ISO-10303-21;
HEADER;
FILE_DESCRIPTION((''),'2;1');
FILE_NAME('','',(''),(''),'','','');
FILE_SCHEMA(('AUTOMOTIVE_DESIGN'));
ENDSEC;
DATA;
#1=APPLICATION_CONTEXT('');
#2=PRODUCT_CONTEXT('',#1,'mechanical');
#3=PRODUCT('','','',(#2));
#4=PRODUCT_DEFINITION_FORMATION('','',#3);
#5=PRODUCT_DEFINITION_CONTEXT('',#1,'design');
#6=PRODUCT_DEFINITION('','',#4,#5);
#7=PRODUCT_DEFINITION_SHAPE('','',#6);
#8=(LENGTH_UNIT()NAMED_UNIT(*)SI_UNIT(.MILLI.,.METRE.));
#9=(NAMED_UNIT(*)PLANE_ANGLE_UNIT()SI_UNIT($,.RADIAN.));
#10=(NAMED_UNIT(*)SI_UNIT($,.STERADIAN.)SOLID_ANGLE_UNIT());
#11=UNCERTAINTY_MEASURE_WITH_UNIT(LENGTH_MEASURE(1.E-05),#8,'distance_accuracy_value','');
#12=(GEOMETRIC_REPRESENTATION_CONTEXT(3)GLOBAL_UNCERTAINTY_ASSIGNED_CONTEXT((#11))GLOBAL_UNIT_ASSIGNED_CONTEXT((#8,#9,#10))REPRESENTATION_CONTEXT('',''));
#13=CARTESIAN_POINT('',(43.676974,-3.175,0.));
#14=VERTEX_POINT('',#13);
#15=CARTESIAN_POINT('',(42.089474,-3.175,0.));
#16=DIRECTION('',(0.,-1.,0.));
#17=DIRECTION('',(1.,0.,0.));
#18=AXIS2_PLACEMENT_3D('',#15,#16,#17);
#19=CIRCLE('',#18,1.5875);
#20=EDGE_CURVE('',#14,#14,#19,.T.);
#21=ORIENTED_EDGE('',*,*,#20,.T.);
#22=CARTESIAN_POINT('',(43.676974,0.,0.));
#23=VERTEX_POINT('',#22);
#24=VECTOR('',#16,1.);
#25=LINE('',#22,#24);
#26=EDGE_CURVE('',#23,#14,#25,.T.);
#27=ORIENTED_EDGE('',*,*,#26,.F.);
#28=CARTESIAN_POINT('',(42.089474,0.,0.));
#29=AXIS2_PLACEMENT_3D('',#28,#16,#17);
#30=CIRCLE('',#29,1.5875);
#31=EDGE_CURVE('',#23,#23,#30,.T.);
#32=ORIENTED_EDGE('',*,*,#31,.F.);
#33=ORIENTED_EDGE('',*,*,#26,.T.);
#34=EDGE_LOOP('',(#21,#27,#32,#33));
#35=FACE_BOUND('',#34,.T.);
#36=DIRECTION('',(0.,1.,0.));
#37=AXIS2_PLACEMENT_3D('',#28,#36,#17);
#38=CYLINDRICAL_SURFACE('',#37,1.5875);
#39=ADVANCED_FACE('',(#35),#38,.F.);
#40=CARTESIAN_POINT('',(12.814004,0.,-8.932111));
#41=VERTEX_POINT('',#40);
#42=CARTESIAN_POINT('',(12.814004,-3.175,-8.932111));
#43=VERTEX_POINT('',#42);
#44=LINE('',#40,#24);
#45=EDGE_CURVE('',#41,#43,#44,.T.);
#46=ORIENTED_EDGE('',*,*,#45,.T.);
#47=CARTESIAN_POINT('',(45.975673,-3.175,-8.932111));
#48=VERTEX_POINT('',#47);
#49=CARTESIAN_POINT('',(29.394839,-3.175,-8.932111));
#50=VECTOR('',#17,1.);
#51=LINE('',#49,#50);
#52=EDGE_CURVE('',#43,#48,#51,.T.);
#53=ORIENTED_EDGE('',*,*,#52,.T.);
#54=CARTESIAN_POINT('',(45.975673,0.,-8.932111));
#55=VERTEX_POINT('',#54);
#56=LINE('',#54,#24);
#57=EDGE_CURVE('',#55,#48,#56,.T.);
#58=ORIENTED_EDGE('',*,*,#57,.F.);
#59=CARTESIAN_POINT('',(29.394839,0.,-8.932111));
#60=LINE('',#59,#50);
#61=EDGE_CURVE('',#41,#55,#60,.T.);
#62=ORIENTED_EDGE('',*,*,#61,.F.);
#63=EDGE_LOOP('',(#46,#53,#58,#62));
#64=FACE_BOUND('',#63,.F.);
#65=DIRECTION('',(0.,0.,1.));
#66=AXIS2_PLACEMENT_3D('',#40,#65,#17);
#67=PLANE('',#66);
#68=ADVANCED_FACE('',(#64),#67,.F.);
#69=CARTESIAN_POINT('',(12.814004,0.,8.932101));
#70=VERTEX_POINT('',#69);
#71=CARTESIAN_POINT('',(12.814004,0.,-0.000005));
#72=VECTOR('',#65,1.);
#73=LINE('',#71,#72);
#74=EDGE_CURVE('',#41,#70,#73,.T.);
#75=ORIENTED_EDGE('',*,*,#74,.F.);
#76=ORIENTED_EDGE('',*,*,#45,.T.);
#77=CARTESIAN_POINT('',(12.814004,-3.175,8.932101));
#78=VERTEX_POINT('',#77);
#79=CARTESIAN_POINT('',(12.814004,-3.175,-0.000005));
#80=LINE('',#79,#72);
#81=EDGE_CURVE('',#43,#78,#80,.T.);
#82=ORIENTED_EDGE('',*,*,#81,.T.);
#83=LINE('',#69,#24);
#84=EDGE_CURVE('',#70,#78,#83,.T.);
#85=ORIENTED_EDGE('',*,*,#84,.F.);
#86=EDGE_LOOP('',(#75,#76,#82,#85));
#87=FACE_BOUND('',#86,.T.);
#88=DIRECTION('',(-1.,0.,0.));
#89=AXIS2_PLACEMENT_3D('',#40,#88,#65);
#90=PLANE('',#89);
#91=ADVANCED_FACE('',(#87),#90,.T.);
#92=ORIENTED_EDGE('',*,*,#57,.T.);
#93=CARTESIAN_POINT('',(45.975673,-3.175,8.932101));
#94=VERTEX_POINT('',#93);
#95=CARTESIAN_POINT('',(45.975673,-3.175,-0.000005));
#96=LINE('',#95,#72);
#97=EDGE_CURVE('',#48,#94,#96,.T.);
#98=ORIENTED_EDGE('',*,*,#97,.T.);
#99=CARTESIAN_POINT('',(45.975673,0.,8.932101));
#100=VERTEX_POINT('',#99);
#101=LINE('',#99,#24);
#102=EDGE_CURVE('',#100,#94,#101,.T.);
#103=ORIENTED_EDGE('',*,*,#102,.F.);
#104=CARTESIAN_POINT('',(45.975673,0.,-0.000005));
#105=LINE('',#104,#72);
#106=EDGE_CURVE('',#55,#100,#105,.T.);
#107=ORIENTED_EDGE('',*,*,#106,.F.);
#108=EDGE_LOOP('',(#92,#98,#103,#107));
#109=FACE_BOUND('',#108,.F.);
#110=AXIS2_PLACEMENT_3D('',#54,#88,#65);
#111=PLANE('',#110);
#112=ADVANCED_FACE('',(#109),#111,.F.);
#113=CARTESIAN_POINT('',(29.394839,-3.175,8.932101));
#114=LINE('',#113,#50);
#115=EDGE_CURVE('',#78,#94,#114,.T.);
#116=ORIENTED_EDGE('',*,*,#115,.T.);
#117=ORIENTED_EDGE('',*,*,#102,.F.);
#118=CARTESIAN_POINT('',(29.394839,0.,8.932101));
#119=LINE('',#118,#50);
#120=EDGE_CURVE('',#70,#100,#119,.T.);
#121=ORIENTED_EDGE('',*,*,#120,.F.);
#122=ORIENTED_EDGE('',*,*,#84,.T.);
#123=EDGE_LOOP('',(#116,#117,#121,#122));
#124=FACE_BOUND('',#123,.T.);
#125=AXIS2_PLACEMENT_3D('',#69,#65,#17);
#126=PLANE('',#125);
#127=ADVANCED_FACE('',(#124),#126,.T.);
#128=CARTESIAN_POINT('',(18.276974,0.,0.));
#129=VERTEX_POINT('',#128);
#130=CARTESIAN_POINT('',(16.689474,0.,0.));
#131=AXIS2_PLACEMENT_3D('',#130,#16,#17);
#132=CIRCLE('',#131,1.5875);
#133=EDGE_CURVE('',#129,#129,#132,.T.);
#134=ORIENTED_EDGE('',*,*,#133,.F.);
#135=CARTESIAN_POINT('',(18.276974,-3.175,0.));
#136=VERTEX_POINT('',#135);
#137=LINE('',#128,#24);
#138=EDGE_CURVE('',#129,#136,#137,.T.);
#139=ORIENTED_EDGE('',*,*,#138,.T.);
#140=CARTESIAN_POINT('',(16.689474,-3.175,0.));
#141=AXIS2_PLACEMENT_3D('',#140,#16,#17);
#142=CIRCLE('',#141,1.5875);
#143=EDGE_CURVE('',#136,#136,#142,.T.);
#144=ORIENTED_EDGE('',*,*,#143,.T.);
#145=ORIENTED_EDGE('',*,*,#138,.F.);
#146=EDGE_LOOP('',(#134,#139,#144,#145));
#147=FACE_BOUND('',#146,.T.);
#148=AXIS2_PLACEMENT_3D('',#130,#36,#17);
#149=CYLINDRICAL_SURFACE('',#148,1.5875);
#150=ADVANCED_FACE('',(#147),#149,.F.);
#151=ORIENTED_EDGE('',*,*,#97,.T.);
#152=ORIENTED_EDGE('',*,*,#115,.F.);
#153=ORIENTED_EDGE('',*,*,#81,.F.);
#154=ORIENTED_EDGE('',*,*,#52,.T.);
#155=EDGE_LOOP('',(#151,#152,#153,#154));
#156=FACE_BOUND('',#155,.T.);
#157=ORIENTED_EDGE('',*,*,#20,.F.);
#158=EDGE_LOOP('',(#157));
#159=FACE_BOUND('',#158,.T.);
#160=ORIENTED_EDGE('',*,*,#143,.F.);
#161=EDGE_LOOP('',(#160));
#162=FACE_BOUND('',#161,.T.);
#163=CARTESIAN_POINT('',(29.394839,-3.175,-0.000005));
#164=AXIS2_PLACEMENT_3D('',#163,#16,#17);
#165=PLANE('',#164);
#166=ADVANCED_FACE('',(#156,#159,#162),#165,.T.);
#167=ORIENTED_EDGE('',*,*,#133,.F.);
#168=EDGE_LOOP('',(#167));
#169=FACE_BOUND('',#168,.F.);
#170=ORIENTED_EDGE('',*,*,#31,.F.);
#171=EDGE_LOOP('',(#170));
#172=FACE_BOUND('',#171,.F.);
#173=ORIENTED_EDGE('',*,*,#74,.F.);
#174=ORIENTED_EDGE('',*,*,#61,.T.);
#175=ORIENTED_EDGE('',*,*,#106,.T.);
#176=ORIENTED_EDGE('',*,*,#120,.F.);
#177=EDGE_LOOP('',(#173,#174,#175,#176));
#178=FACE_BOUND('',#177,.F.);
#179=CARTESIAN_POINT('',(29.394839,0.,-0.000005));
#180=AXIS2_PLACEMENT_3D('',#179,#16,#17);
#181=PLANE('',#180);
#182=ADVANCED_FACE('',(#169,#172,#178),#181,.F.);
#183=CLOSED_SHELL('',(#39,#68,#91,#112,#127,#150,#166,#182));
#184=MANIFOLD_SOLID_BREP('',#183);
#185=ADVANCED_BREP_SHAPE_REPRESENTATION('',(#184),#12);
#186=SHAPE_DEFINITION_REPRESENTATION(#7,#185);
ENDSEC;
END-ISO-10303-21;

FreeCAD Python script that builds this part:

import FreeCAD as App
import Part
import Sketcher
from FreeCAD import Vector
Q = App.Units.Quantity

doc = App.newDocument("Part")
body = doc.addObject("PartDesign::Body", "Body")

sketch1 = body.newObject("Sketcher::SketchObject", "Sketch")
sketch1.AttachmentSupport = (doc.getObject("XZ_Plane"), [""])
sketch1.MapMode = "FlatFace"
sketch1.addGeometry(Part.LineSegment(Vector(12.8, 8.9, 0), Vector(12.8, -8.9, 0)), False)
sketch1.addGeometry(Part.LineSegment(Vector(12.8, -8.9, 0), Vector(46, -8.9, 0)), False)
sketch1.addGeometry(Part.LineSegment(Vector(46, -8.9, 0), Vector(46, 8.9, 0)), False)
sketch1.addGeometry(Part.LineSegment(Vector(46, 8.9, 0), Vector(12.8, 8.9, 0)), False)
sketch1.addGeometry(Part.Circle(Vector(16.7, 0, 0), Vector(0, 0, 1), 1.6), False)
sketch1.addGeometry(Part.Circle(Vector(42.1, 0, 0), Vector(0, 0, 1), 1.6), False)
sketch1.addConstraint(Sketcher.Constraint("Coincident", 0, 2, 1, 1))
sketch1.addConstraint(Sketcher.Constraint("Coincident", 1, 2, 2, 1))
sketch1.addConstraint(Sketcher.Constraint("Coincident", 2, 2, 3, 1))
sketch1.addConstraint(Sketcher.Constraint("Coincident", 3, 2, 0, 1))
sketch1.addConstraint(Sketcher.Constraint("Vertical", 0))
sketch1.addConstraint(Sketcher.Constraint("Horizontal", 1))
sketch1.addConstraint(Sketcher.Constraint("Vertical", 2))
sketch1.addConstraint(Sketcher.Constraint("Horizontal", 3))
sketch1.addConstraint(Sketcher.Constraint("Equal", 4, 5))
sketch1.addConstraint(Sketcher.Constraint("PointOnObject", 4, 3, -1))
sketch1.addConstraint(Sketcher.Constraint("PointOnObject", 5, 3, -1))
sketch1.addConstraint(Sketcher.Constraint("Diameter", 4, Q("0.125 in")))
sketch1.addConstraint(Sketcher.Constraint("DistanceX", 4, 3, 5, 3, Q("1 in")))
sketch1.addConstraint(Sketcher.Constraint("DistanceX", 5, 3, 1, 2, Q("0.153 in")))
sketch1.addConstraint(Sketcher.Constraint("DistanceX", 1, 1, 1, 2, Q("33.161669 mm")))
sketch1.addConstraint(Sketcher.Constraint("DistanceY", 0, 2, 0, 1, Q("17.864211 mm")))
sketch1.addConstraint(Sketcher.Constraint("DistanceY", -1, 1, 2, 2, Q("8.932101 mm")))
sketch1.addConstraint(Sketcher.Constraint("DistanceX", -1, 1, 4, 3, Q("16.689474 mm")))
pad1 = body.newObject("PartDesign::Pad", "Pad")
pad1.Profile = sketch1
pad1.Length = Q("0.125 in")

doc.recompute()
